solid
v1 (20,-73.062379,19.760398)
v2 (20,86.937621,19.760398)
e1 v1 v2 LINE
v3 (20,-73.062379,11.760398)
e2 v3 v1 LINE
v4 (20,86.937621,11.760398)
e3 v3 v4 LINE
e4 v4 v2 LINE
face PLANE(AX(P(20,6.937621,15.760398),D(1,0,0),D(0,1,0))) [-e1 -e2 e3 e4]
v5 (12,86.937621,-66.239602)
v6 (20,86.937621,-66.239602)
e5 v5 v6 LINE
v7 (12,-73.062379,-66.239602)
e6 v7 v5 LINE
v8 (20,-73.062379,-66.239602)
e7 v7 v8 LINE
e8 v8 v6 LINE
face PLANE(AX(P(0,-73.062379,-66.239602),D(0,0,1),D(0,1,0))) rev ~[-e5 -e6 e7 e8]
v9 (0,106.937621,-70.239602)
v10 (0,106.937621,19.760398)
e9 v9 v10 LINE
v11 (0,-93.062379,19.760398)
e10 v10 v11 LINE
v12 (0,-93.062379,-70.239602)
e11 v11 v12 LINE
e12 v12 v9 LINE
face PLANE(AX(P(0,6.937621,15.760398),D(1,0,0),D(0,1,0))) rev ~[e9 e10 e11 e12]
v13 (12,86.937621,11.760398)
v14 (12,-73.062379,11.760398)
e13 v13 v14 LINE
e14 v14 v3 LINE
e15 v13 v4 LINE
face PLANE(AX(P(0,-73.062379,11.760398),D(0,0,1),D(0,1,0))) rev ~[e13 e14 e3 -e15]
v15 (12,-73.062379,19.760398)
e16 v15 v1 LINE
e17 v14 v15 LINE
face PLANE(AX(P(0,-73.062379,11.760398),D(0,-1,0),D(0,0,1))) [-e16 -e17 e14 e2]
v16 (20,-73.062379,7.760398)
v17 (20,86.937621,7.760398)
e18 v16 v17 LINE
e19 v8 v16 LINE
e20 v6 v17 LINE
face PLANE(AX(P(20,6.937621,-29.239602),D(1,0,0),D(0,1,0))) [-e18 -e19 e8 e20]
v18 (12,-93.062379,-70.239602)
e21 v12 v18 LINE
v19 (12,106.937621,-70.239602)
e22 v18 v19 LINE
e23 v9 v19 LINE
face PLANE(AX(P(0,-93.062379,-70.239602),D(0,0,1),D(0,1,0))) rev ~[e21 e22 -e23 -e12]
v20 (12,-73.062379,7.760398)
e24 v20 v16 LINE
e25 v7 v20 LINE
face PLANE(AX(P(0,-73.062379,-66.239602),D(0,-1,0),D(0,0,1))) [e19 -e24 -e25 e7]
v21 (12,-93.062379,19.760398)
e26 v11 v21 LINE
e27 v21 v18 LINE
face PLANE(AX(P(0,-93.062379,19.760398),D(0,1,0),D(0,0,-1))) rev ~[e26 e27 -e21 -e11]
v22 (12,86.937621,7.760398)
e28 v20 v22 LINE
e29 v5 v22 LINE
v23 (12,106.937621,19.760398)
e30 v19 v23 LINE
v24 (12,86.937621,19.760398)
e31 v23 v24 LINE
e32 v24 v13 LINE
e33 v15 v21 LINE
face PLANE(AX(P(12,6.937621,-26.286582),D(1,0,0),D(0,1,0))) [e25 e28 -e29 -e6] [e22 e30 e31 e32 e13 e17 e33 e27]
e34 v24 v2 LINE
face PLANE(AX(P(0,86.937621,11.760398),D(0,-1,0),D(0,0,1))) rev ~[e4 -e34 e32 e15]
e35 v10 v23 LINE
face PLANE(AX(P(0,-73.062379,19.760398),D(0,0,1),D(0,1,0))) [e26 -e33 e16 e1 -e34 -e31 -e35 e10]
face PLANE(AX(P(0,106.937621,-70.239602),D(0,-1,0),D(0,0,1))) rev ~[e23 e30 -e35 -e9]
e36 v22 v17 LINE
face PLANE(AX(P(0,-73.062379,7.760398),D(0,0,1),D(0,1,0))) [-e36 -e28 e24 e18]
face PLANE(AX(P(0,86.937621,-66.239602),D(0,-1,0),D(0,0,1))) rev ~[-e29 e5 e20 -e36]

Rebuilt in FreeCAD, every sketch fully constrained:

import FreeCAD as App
import Part
import Sketcher
Q = App.Units.Quantity

doc = App.newDocument("Part")
body = doc.addObject("PartDesign::Body", "Body")

# Sketch on YZ plane
sketch1 = body.newObject("Sketcher::SketchObject", "Sketch")
sketch1.AttachmentSupport = (doc.getObject("YZ_Plane"), [""])
sketch1.MapMode = "FlatFace"
sketch1.addGeometry([
    Part.LineSegment(App.Vector(-73.062379, 19.760398, 0), App.Vector(-93.062379, 19.760398, 0)),  # 0
    Part.LineSegment(App.Vector(-93.062379, 19.760398, 0), App.Vector(-93.062379, -70.239602, 0)),  # 1
    Part.LineSegment(App.Vector(-93.062379, -70.239602, 0), App.Vector(106.937621, -70.239602, 0)),  # 2
    Part.LineSegment(App.Vector(106.937621, -70.239602, 0), App.Vector(106.937621, 19.760398, 0)),  # 3
    Part.LineSegment(App.Vector(106.937621, 19.760398, 0), App.Vector(86.937621, 19.760398, 0)),  # 4
    Part.LineSegment(App.Vector(86.937621, 19.760398, 0), App.Vector(86.937621, 11.760398, 0)),  # 5
    Part.LineSegment(App.Vector(86.937621, 11.760398, 0), App.Vector(-73.062379, 11.760398, 0)),  # 6
    Part.LineSegment(App.Vector(-73.062379, 11.760398, 0), App.Vector(-73.062379, 19.760398, 0)),  # 7
    Part.LineSegment(App.Vector(86.937621, -66.239602, 0), App.Vector(-73.062379, -66.239602, 0)),  # 8
    Part.LineSegment(App.Vector(-73.062379, -66.239602, 0), App.Vector(-73.062379, 7.760398, 0)),  # 9
    Part.LineSegment(App.Vector(-73.062379, 7.760398, 0), App.Vector(86.937621, 7.760398, 0)),  # 10
    Part.LineSegment(App.Vector(86.937621, 7.760398, 0), App.Vector(86.937621, -66.239602, 0)),  # 11
], False)
sketch1.addConstraint([
    Sketcher.Constraint("Coincident", 0, 2, 1, 1),
    Sketcher.Constraint("Coincident", 1, 2, 2, 1),
    Sketcher.Constraint("Coincident", 2, 2, 3, 1),
    Sketcher.Constraint("Coincident", 3, 2, 4, 1),
    Sketcher.Constraint("Coincident", 4, 2, 5, 1),
    Sketcher.Constraint("Coincident", 5, 2, 6, 1),
    Sketcher.Constraint("Coincident", 6, 2, 7, 1),
    Sketcher.Constraint("Coincident", 7, 2, 0, 1),
    Sketcher.Constraint("Coincident", 8, 2, 9, 1),
    Sketcher.Constraint("Coincident", 9, 2, 10, 1),
    Sketcher.Constraint("Coincident", 10, 2, 11, 1),
    Sketcher.Constraint("Coincident", 11, 2, 8, 1),
    Sketcher.Constraint("Horizontal", 0),
    Sketcher.Constraint("Vertical", 1),
    Sketcher.Constraint("Horizontal", 2),
    Sketcher.Constraint("Vertical", 3),
    Sketcher.Constraint("Horizontal", 4),
    Sketcher.Constraint("Vertical", 5),
    Sketcher.Constraint("Horizontal", 6),
    Sketcher.Constraint("Vertical", 7),
    Sketcher.Constraint("Horizontal", 8),
    Sketcher.Constraint("Vertical", 9),
    Sketcher.Constraint("Horizontal", 10),
    Sketcher.Constraint("Vertical", 11),
    Sketcher.Constraint("Horizontal", 0, 2, 3, 2),
    Sketcher.Constraint("Vertical", 7, 2, 8, 2),
    Sketcher.Constraint("Vertical", 5, 2, 10, 2),
    Sketcher.Constraint("Equal", 0, 4),
    Sketcher.Constraint("DistanceX", 0, 2, 0, 1, Q("20 mm")),
    Sketcher.Constraint("DistanceX", 2, 1, 2, 2, Q("200 mm")),
    Sketcher.Constraint("DistanceY", 1, 2, 1, 1, Q("90 mm")),
    Sketcher.Constraint("DistanceY", 5, 2, 5, 1, Q("8 mm")),
    Sketcher.Constraint("DistanceY", 9, 1, 9, 2, Q("74 mm")),
    Sketcher.Constraint("DistanceY", 1, 2, 8, 2, Q("4 mm")),
    Sketcher.Constraint("DistanceY", -1, 1, 9, 2, Q("7.760398 mm")),
    Sketcher.Constraint("DistanceX", 0, 2, -1, 1, Q("93.062379 mm")),
])
pad1 = body.newObject("PartDesign::Pad", "Pad")
pad1.Profile = sketch1
pad1.Length = 12

# Sketch on YZ plane
sketch2 = body.newObject("Sketcher::SketchObject", "Sketch001")
sketch2.AttachmentSupport = (doc.getObject("YZ_Plane"), [""])
sketch2.MapMode = "FlatFace"
sketch2.addGeometry([
    Part.LineSegment(App.Vector(-73.062379, 19.760398, 0), App.Vector(-73.062379, 11.760398, 0)),  # 0
    Part.LineSegment(App.Vector(-73.062379, 11.760398, 0), App.Vector(86.937621, 11.760398, 0)),  # 1
    Part.LineSegment(App.Vector(86.937621, 11.760398, 0), App.Vector(86.937621, 19.760398, 0)),  # 2
    Part.LineSegment(App.Vector(86.937621, 19.760398, 0), App.Vector(-73.062379, 19.760398, 0)),  # 3
    Part.LineSegment(App.Vector(-73.062379, 7.760398, 0), App.Vector(-73.062379, -66.239602, 0)),  # 4
    Part.LineSegment(App.Vector(-73.062379, -66.239602, 0), App.Vector(86.937621, -66.239602, 0)),  # 5
    Part.LineSegment(App.Vector(86.937621, -66.239602, 0), App.Vector(86.937621, 7.760398, 0)),  # 6
    Part.LineSegment(App.Vector(86.937621, 7.760398, 0), App.Vector(-73.062379, 7.760398, 0)),  # 7
], False)
sketch2.addConstraint([
    Sketcher.Constraint("Coincident", 0, 2, 1, 1),
    Sketcher.Constraint("Coincident", 1, 2, 2, 1),
    Sketcher.Constraint("Coincident", 2, 2, 3, 1),
    Sketcher.Constraint("Coincident", 3, 2, 0, 1),
    Sketcher.Constraint("Coincident", 4, 2, 5, 1),
    Sketcher.Constraint("Coincident", 5, 2, 6, 1),
    Sketcher.Constraint("Coincident", 6, 2, 7, 1),
    Sketcher.Constraint("Coincident", 7, 2, 4, 1),
    Sketcher.Constraint("Vertical", 0),
    Sketcher.Constraint("Horizontal", 1),
    Sketcher.Constraint("Vertical", 2),
    Sketcher.Constraint("Horizontal", 3),
    Sketcher.Constraint("Vertical", 4),
    Sketcher.Constraint("Horizontal", 5),
    Sketcher.Constraint("Vertical", 6),
    Sketcher.Constraint("Horizontal", 7),
    Sketcher.Constraint("Vertical", 3, 2, 4, 2),
    Sketcher.Constraint("Vertical", 2, 2, 5, 2),
    Sketcher.Constraint("DistanceX", 1, 1, 1, 2, Q("160 mm")),
    Sketcher.Constraint("DistanceY", 0, 2, 0, 1, Q("8 mm")),
    Sketcher.Constraint("DistanceY", 4, 2, 4, 1, Q("74 mm")),
    Sketcher.Constraint("DistanceY", 4, 2, 0, 2, Q("78 mm")),
    Sketcher.Constraint("DistanceY", -1, 1, 6, 2, Q("7.760398 mm")),
    Sketcher.Constraint("DistanceX", 0, 2, -1, 1, Q("73.062379 mm")),
])
pad2 = body.newObject("PartDesign::Pad", "Pad001")
pad2.Profile = sketch2
pad2.Length = 20

doc.recompute()
